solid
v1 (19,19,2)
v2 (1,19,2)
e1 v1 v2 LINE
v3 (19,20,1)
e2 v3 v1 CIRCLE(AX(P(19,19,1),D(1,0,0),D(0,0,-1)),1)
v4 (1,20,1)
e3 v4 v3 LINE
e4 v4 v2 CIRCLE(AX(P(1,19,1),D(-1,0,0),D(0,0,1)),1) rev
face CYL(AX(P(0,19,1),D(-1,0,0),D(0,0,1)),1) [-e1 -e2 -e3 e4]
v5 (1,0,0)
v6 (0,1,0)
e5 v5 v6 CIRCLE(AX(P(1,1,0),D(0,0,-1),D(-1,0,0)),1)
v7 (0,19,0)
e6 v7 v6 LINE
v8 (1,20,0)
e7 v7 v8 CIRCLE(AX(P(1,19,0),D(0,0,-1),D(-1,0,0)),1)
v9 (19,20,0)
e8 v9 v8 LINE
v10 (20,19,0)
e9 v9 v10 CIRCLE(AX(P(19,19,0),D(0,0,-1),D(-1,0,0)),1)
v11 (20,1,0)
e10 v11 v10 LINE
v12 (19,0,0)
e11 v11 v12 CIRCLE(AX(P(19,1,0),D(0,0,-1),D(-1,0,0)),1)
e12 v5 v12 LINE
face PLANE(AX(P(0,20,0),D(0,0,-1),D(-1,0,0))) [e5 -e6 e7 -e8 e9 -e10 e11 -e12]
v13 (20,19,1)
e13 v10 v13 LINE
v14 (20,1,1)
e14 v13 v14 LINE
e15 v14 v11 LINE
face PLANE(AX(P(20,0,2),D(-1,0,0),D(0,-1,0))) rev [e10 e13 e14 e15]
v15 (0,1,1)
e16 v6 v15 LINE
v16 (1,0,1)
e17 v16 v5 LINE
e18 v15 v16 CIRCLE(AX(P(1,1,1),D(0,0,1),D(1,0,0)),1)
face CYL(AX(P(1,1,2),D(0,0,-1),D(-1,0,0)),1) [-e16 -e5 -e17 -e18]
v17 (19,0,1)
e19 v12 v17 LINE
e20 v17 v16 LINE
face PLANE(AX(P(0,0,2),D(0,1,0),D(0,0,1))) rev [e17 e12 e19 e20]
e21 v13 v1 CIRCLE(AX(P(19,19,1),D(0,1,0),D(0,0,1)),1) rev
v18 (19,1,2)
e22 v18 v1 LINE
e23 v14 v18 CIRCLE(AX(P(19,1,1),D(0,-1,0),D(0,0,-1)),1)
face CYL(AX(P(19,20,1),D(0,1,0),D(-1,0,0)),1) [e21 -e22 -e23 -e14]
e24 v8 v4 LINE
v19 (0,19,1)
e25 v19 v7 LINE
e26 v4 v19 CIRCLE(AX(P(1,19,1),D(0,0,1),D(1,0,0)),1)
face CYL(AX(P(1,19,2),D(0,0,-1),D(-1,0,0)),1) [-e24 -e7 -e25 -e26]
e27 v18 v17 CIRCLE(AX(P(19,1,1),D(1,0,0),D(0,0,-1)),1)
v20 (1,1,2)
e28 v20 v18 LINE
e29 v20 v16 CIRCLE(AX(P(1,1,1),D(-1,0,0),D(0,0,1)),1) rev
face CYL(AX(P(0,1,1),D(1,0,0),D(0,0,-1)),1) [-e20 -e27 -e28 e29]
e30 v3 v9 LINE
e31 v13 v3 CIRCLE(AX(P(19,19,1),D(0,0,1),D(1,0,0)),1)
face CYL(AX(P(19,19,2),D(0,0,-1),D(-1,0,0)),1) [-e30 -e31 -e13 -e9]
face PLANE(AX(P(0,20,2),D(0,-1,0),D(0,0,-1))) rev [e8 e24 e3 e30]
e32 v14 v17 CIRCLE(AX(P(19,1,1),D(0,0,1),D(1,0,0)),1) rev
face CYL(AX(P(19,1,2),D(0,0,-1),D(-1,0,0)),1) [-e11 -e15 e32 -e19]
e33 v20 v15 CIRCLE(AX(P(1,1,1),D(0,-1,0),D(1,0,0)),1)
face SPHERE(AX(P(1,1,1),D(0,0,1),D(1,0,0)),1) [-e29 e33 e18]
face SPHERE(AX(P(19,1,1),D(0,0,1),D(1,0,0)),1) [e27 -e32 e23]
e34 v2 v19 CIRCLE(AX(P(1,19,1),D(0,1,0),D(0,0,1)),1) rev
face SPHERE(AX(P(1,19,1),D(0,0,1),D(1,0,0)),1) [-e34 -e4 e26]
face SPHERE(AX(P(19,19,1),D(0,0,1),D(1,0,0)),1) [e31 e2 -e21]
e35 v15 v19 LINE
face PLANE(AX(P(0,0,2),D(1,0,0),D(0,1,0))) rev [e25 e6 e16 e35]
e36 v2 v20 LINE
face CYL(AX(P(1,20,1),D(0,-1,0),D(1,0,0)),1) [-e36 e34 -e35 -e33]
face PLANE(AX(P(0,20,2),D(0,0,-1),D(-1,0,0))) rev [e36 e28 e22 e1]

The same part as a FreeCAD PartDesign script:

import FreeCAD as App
import Part
import Sketcher
Q = App.Units.Quantity


def edges_at(feature, points):
    """Names of the edges that pass closest to the given points."""
    edges = feature.Shape.Edges
    near = lambda p: min(range(len(edges)), key=lambda i: edges[i].distToShape(Part.Vertex(*p))[0])
    return sorted({f"Edge{near(p) + 1}" for p in points})

doc = App.newDocument("Part")
body = doc.addObject("PartDesign::Body", "Body")

# Sketch on XY plane
sketch1 = body.newObject("Sketcher::SketchObject", "Sketch")
sketch1.AttachmentSupport = (doc.getObject("XY_Plane"), [""])
sketch1.MapMode = "FlatFace"
sketch1.addGeometry(Part.LineSegment(App.Vector(0, 20, 0), App.Vector(0, 0, 0)), False)
sketch1.addGeometry(Part.LineSegment(App.Vector(0, 0, 0), App.Vector(20, 0, 0)), False)
sketch1.addGeometry(Part.LineSegment(App.Vector(20, 0, 0), App.Vector(20, 20, 0)), False)
sketch1.addGeometry(Part.LineSegment(App.Vector(20, 20, 0), App.Vector(0, 20, 0)), False)
sketch1.addConstraint(Sketcher.Constraint("Coincident", 0, 2, 1, 1))
sketch1.addConstraint(Sketcher.Constraint("Coincident", 1, 2, 2, 1))
sketch1.addConstraint(Sketcher.Constraint("Coincident", 2, 2, 3, 1))
sketch1.addConstraint(Sketcher.Constraint("Coincident", 3, 2, 0, 1))
sketch1.addConstraint(Sketcher.Constraint("Vertical", 0))
sketch1.addConstraint(Sketcher.Constraint("Horizontal", 1))
sketch1.addConstraint(Sketcher.Constraint("Vertical", 2))
sketch1.addConstraint(Sketcher.Constraint("Horizontal", 3))
sketch1.addConstraint(Sketcher.Constraint("Coincident", 0, 2, -1, 1))
sketch1.addConstraint(Sketcher.Constraint("Equal", 3, 0))
sketch1.addConstraint(Sketcher.Constraint("DistanceX", 1, 1, 1, 2, Q("20 mm")))
pad1 = body.newObject("PartDesign::Pad", "Pad")
pad1.Profile = sketch1
pad1.Length = 2
doc.recompute()

fillet = body.newObject("PartDesign::Fillet", "Fillet")
fillet.Base = (pad1, edges_at(pad1, [
    (20, 10, 2),
    (10, 20, 2),
    (0, 10, 2),
    (10, 0, 2),
    (0, 20, 1),
    (20, 20, 1),
    (20, 0, 1),
    (0, 0, 1),
]))
fillet.Radius = 1

doc.recompute()
